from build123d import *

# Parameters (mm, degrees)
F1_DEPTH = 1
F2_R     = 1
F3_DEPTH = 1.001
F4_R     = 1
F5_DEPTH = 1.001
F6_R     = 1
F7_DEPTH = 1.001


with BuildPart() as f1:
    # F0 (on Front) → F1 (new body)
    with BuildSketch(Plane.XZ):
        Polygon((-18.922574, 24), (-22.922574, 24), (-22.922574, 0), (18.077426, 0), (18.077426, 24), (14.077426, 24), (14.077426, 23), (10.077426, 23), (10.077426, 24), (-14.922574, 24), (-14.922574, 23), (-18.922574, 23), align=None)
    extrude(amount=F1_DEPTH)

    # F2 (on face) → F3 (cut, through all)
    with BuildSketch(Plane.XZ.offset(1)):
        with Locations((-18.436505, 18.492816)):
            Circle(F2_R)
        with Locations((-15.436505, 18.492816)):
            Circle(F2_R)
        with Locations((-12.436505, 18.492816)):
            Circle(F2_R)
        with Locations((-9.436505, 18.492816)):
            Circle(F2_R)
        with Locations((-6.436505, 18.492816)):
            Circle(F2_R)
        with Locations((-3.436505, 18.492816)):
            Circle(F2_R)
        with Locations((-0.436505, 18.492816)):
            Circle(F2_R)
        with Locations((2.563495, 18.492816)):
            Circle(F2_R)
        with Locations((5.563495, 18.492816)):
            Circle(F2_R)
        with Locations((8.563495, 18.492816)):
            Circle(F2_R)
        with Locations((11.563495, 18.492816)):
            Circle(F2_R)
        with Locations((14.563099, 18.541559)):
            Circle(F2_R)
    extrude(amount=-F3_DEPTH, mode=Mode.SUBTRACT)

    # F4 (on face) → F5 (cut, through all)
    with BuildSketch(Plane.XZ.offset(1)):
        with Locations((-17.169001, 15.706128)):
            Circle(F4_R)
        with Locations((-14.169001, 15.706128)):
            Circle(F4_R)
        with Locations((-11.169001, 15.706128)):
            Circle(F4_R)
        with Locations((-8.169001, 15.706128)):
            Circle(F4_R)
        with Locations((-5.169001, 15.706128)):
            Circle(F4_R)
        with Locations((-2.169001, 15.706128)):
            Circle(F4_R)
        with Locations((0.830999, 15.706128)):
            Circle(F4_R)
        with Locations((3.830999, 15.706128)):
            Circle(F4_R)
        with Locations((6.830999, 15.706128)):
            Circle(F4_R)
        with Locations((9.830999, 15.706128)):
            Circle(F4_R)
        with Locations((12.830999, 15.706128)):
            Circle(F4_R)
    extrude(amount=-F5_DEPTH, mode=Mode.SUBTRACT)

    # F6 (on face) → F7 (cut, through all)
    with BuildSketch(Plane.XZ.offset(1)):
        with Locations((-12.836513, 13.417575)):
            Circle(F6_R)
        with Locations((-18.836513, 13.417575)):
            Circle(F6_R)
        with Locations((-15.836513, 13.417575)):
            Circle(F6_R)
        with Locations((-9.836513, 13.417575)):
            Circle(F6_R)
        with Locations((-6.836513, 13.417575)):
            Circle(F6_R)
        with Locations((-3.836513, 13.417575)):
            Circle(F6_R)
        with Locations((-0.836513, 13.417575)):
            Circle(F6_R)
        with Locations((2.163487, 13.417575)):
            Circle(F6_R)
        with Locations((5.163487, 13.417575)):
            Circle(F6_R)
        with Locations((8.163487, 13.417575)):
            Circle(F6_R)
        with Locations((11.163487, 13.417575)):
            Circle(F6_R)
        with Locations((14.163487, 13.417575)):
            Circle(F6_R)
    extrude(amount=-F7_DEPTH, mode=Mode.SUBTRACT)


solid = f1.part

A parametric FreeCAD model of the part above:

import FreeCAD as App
import Part
import Sketcher

doc = App.newDocument("Part")
body = doc.addObject("PartDesign::Body", "Body")

# Sketch on XZ plane
sketch1 = body.newObject("Sketcher::SketchObject", "Sketch")
sketch1.AttachmentSupport = (doc.getObject("XZ_Plane"), [""])
sketch1.MapMode = "FlatFace"
sketch1.addGeometry([
    Part.LineSegment(App.Vector(-18.9, 24, 0), App.Vector(-22.9, 24, 0)),  # 0
    Part.LineSegment(App.Vector(-22.9, 24, 0), App.Vector(-22.9, 0, 0)),  # 1
    Part.LineSegment(App.Vector(-22.9, 0, 0), App.Vector(18.1, 0, 0)),  # 2
    Part.LineSegment(App.Vector(18.1, 0, 0), App.Vector(18.1, 24, 0)),  # 3
    Part.LineSegment(App.Vector(18.1, 24, 0), App.Vector(14.1, 24, 0)),  # 4
    Part.LineSegment(App.Vector(14.1, 24, 0), App.Vector(14.1, 23, 0)),  # 5
    Part.LineSegment(App.Vector(14.1, 23, 0), App.Vector(10.1, 23, 0)),  # 6
    Part.LineSegment(App.Vector(10.1, 23, 0), App.Vector(10.1, 24, 0)),  # 7
    Part.LineSegment(App.Vector(10.1, 24, 0), App.Vector(-14.9, 24, 0)),  # 8
    Part.LineSegment(App.Vector(-14.9, 24, 0), App.Vector(-14.9, 23, 0)),  # 9
    Part.LineSegment(App.Vector(-14.9, 23, 0), App.Vector(-18.9, 23, 0)),  # 10
    Part.LineSegment(App.Vector(-18.9, 23, 0), App.Vector(-18.9, 24, 0)),  # 11
], False)
sketch1.addConstraint([
    Sketcher.Constraint("Coincident", 0, 2, 1, 1),
    Sketcher.Constraint("Coincident", 1, 2, 2, 1),
    Sketcher.Constraint("Coincident", 2, 2, 3, 1),
    Sketcher.Constraint("Coincident", 3, 2, 4, 1),
    Sketcher.Constraint("Coincident", 4, 2, 5, 1),
    Sketcher.Constraint("Coincident", 5, 2, 6, 1),
    Sketcher.Constraint("Coincident", 6, 2, 7, 1),
    Sketcher.Constraint("Coincident", 7, 2, 8, 1),
    Sketcher.Constraint("Coincident", 8, 2, 9, 1),
    Sketcher.Constraint("Coincident", 9, 2, 10, 1),
    Sketcher.Constraint("Coincident", 10, 2, 11, 1),
    Sketcher.Constraint("Coincident", 11, 2, 0, 1),
    Sketcher.Constraint("Horizontal", 0),
    Sketcher.Constraint("Vertical", 1),
    Sketcher.Constraint("Horizontal", 2),
    Sketcher.Constraint("Vertical", 3),
    Sketcher.Constraint("Horizontal", 4),
    Sketcher.Constraint("Vertical", 5),
    Sketcher.Constraint("Horizontal", 6),
    Sketcher.Constraint("Vertical", 7),
    Sketcher.Constraint("Horizontal", 8),
    Sketcher.Constraint("Vertical", 9),
    Sketcher.Constraint("Horizontal", 10),
    Sketcher.Constraint("Vertical", 11),
    Sketcher.Constraint("PointOnObject", 1, 2, -1),
    Sketcher.Constraint("Horizontal", 0, 2, 3, 2),
    Sketcher.Constraint("Horizontal", 4, 2, 7, 2),
    Sketcher.Constraint("Horizontal", 6, 2, 9, 2),
    Sketcher.Constraint("Equal", 0, 4),
    Sketcher.Constraint("Equal", 4, 6),
    Sketcher.Constraint("Equal", 6, 10),
    Sketcher.Constraint("DistanceX", 0, 2, 0, 1, 4.0),
    Sketcher.Constraint("DistanceX", 2, 1, 2, 2, 41.0),
    Sketcher.Constraint("DistanceY", 1, 2, 1, 1, 24.0),
    Sketcher.Constraint("DistanceY", 5, 2, 5, 1, 1.0),
    Sketcher.Constraint("DistanceX", 0, 2, -1, 1, 22.922574),
])
pad1 = body.newObject("PartDesign::Pad", "Pad")
pad1.Profile = sketch1
pad1.Length = 1

# Sketch on XZ plane
sketch2 = body.newObject("Sketcher::SketchObject", "Sketch001")
sketch2.AttachmentSupport = (doc.getObject("XZ_Plane"), [""])
sketch2.MapMode = "FlatFace"
sketch2.AttachmentOffset = App.Placement(App.Vector(0, 0, 1), App.Rotation())
sketch2.addGeometry([
    Part.Circle(App.Vector(-18.4, 18.5, 0), App.Vector(0, 0, 1), 1),  # 0
    Part.Circle(App.Vector(-15.4, 18.5, 0), App.Vector(0, 0, 1), 1),  # 1
    Part.Circle(App.Vector(-12.4, 18.5, 0), App.Vector(0, 0, 1), 1),  # 2
    Part.Circle(App.Vector(-9.4, 18.5, 0), App.Vector(0, 0, 1), 1),  # 3
    Part.Circle(App.Vector(-6.4, 18.5, 0), App.Vector(0, 0, 1), 1),  # 4
    Part.Circle(App.Vector(-3.4, 18.5, 0), App.Vector(0, 0, 1), 1),  # 5
    Part.Circle(App.Vector(-0.4, 18.5, 0), App.Vector(0, 0, 1), 1),  # 6
    Part.Circle(App.Vector(2.6, 18.5, 0), App.Vector(0, 0, 1), 1),  # 7
    Part.Circle(App.Vector(5.6, 18.5, 0), App.Vector(0, 0, 1), 1),  # 8
    Part.Circle(App.Vector(8.6, 18.5, 0), App.Vector(0, 0, 1), 1),  # 9
    Part.Circle(App.Vector(11.6, 18.5, 0), App.Vector(0, 0, 1), 1),  # 10
    Part.Circle(App.Vector(14.6, 18.5, 0), App.Vector(0, 0, 1), 1),  # 11
], False)
sketch2.addConstraint([
    Sketcher.Constraint("Equal", 0, 1),
    Sketcher.Constraint("Equal", 1, 2),
    Sketcher.Constraint("Equal", 2, 3),
    Sketcher.Constraint("Equal", 3, 4),
    Sketcher.Constraint("Equal", 4, 5),
    Sketcher.Constraint("Equal", 5, 6),
    Sketcher.Constraint("Equal", 6, 7),
    Sketcher.Constraint("Equal", 7, 8),
    Sketcher.Constraint("Equal", 8, 9),
    Sketcher.Constraint("Equal", 9, 10),
    Sketcher.Constraint("Equal", 10, 11),
    Sketcher.Constraint("Horizontal", 0, 3, 1, 3),
    Sketcher.Constraint("Horizontal", 1, 3, 2, 3),
    Sketcher.Constraint("Horizontal", 2, 3, 3, 3),
    Sketcher.Constraint("Horizontal", 3, 3, 4, 3),
    Sketcher.Constraint("Horizontal", 4, 3, 5, 3),
    Sketcher.Constraint("Horizontal", 5, 3, 6, 3),
    Sketcher.Constraint("Horizontal", 6, 3, 7, 3),
    Sketcher.Constraint("Horizontal", 7, 3, 8, 3),
    Sketcher.Constraint("Horizontal", 8, 3, 9, 3),
    Sketcher.Constraint("Horizontal", 9, 3, 10, 3),
    Sketcher.Constraint("Diameter", 0, 2.0),
    Sketcher.Constraint("DistanceX", 0, 3, 1, 3, 3.0),
    Sketcher.Constraint("DistanceX", 1, 3, 2, 3, 3.0),
    Sketcher.Constraint("DistanceX", 2, 3, 3, 3, 3.0),
    Sketcher.Constraint("DistanceX", 3, 3, 4, 3, 3.0),
    Sketcher.Constraint("DistanceX", 4, 3, 5, 3, 3.0),
    Sketcher.Constraint("DistanceX", 5, 3, 6, 3, 3.0),
    Sketcher.Constraint("DistanceX", 6, 3, 7, 3, 3.0),
    Sketcher.Constraint("DistanceX", 7, 3, 8, 3, 3.0),
    Sketcher.Constraint("DistanceX", 8, 3, 9, 3, 3.0),
    Sketcher.Constraint("DistanceX", 9, 3, 10, 3, 3.0),
    Sketcher.Constraint("DistanceX", -1, 1, 11, 3, 14.563099),
    Sketcher.Constraint("DistanceY", -1, 1, 11, 3, 18.541559),
    Sketcher.Constraint("DistanceX", 0, 3, -1, 1, 18.436505),
    Sketcher.Constraint("DistanceY", -1, 1, 0, 3, 18.492816),
])
pocket1 = body.newObject("PartDesign::Pocket", "Pocket")
pocket1.Profile = sketch2
pocket1.Type = "ThroughAll"

# Sketch on XZ plane
sketch3 = body.newObject("Sketcher::SketchObject", "Sketch002")
sketch3.AttachmentSupport = (doc.getObject("XZ_Plane"), [""])
sketch3.MapMode = "FlatFace"
sketch3.AttachmentOffset = App.Placement(App.Vector(0, 0, 1), App.Rotation())
sketch3.addGeometry([
    Part.Circle(App.Vector(-17.2, 15.7, 0), App.Vector(0, 0, 1), 1),  # 0
    Part.Circle(App.Vector(-14.2, 15.7, 0), App.Vector(0, 0, 1), 1),  # 1
    Part.Circle(App.Vector(-11.2, 15.7, 0), App.Vector(0, 0, 1), 1),  # 2
    Part.Circle(App.Vector(-8.2, 15.7, 0), App.Vector(0, 0, 1), 1),  # 3
    Part.Circle(App.Vector(-5.2, 15.7, 0), App.Vector(0, 0, 1), 1),  # 4
    Part.Circle(App.Vector(-2.2, 15.7, 0), App.Vector(0, 0, 1), 1),  # 5
    Part.Circle(App.Vector(0.8, 15.7, 0), App.Vector(0, 0, 1), 1),  # 6
    Part.Circle(App.Vector(3.8, 15.7, 0), App.Vector(0, 0, 1), 1),  # 7
    Part.Circle(App.Vector(6.8, 15.7, 0), App.Vector(0, 0, 1), 1),  # 8
    Part.Circle(App.Vector(9.8, 15.7, 0), App.Vector(0, 0, 1), 1),  # 9
    Part.Circle(App.Vector(12.8, 15.7, 0), App.Vector(0, 0, 1), 1),  # 10
], False)
sketch3.addConstraint([
    Sketcher.Constraint("Equal", 0, 1),
    Sketcher.Constraint("Equal", 1, 2),
    Sketcher.Constraint("Equal", 2, 3),
    Sketcher.Constraint("Equal", 3, 4),
    Sketcher.Constraint("Equal", 4, 5),
    Sketcher.Constraint("Equal", 5, 6),
    Sketcher.Constraint("Equal", 6, 7),
    Sketcher.Constraint("Equal", 7, 8),
    Sketcher.Constraint("Equal", 8, 9),
    Sketcher.Constraint("Equal", 9, 10),
    Sketcher.Constraint("Horizontal", 0, 3, 1, 3),
    Sketcher.Constraint("Horizontal", 1, 3, 2, 3),
    Sketcher.Constraint("Horizontal", 2, 3, 3, 3),
    Sketcher.Constraint("Horizontal", 3, 3, 4, 3),
    Sketcher.Constraint("Horizontal", 4, 3, 5, 3),
    Sketcher.Constraint("Horizontal", 5, 3, 6, 3),
    Sketcher.Constraint("Horizontal", 6, 3, 7, 3),
    Sketcher.Constraint("Horizontal", 7, 3, 8, 3),
    Sketcher.Constraint("Horizontal", 8, 3, 9, 3),
    Sketcher.Constraint("Horizontal", 9, 3, 10, 3),
    Sketcher.Constraint("Diameter", 0, 2.0),
    Sketcher.Constraint("DistanceX", 0, 3, 1, 3, 3.0),
    Sketcher.Constraint("DistanceX", 1, 3, 2, 3, 3.0),
    Sketcher.Constraint("DistanceX", 2, 3, 3, 3, 3.0),
    Sketcher.Constraint("DistanceX", 3, 3, 4, 3, 3.0),
    Sketcher.Constraint("DistanceX", 4, 3, 5, 3, 3.0),
    Sketcher.Constraint("DistanceX", 5, 3, 6, 3, 3.0),
    Sketcher.Constraint("DistanceX", 6, 3, 7, 3, 3.0),
    Sketcher.Constraint("DistanceX", 7, 3, 8, 3, 3.0),
    Sketcher.Constraint("DistanceX", 8, 3, 9, 3, 3.0),
    Sketcher.Constraint("DistanceX", 9, 3, 10, 3, 3.0),
    Sketcher.Constraint("DistanceX", 0, 3, -1, 1, 17.169001),
    Sketcher.Constraint("DistanceY", -1, 1, 0, 3, 15.706128),
])
pocket2 = body.newObject("PartDesign::Pocket", "Pocket001")
pocket2.Profile = sketch3
pocket2.Type = "ThroughAll"

# Sketch on XZ plane
sketch4 = body.newObject("Sketcher::SketchObject", "Sketch003")
sketch4.AttachmentSupport = (doc.getObject("XZ_Plane"), [""])
sketch4.MapMode = "FlatFace"
sketch4.AttachmentOffset = App.Placement(App.Vector(0, 0, 1), App.Rotation())
sketch4.addGeometry([
    Part.Circle(App.Vector(-12.8, 13.4, 0), App.Vector(0, 0, 1), 1),  # 0
    Part.Circle(App.Vector(-18.8, 13.4, 0), App.Vector(0, 0, 1), 1),  # 1
    Part.Circle(App.Vector(-15.8, 13.4, 0), App.Vector(0, 0, 1), 1),  # 2
    Part.Circle(App.Vector(-9.8, 13.4, 0), App.Vector(0, 0, 1), 1),  # 3
    Part.Circle(App.Vector(-6.8, 13.4, 0), App.Vector(0, 0, 1), 1),  # 4
    Part.Circle(App.Vector(-3.8, 13.4, 0), App.Vector(0, 0, 1), 1),  # 5
    Part.Circle(App.Vector(-0.8, 13.4, 0), App.Vector(0, 0, 1), 1),  # 6
    Part.Circle(App.Vector(2.2, 13.4, 0), App.Vector(0, 0, 1), 1),  # 7
    Part.Circle(App.Vector(5.2, 13.4, 0), App.Vector(0, 0, 1), 1),  # 8
    Part.Circle(App.Vector(8.2, 13.4, 0), App.Vector(0, 0, 1), 1),  # 9
    Part.Circle(App.Vector(11.2, 13.4, 0), App.Vector(0, 0, 1), 1),  # 10
    Part.Circle(App.Vector(14.2, 13.4, 0), App.Vector(0, 0, 1), 1),  # 11
], False)
sketch4.addConstraint([
    Sketcher.Constraint("Equal", 0, 1),
    Sketcher.Constraint("Equal", 1, 2),
    Sketcher.Constraint("Equal", 2, 3),
    Sketcher.Constraint("Equal", 3, 4),
    Sketcher.Constraint("Equal", 4, 5),
    Sketcher.Constraint("Equal", 5, 6),
    Sketcher.Constraint("Equal", 6, 7),
    Sketcher.Constraint("Equal", 7, 8),
    Sketcher.Constraint("Equal", 8, 9),
    Sketcher.Constraint("Equal", 9, 10),
    Sketcher.Constraint("Equal", 10, 11),
    Sketcher.Constraint("Horizontal", 0, 3, 1, 3),
    Sketcher.Constraint("Horizontal", 1, 3, 2, 3),
    Sketcher.Constraint("Horizontal", 2, 3, 3, 3),
    Sketcher.Constraint("Horizontal", 3, 3, 4, 3),
    Sketcher.Constraint("Horizontal", 4, 3, 5, 3),
    Sketcher.Constraint("Horizontal", 5, 3, 6, 3),
    Sketcher.Constraint("Horizontal", 6, 3, 7, 3),
    Sketcher.Constraint("Horizontal", 7, 3, 8, 3),
    Sketcher.Constraint("Horizontal", 8, 3, 9, 3),
    Sketcher.Constraint("Horizontal", 9, 3, 10, 3),
    Sketcher.Constraint("Horizontal", 10, 3, 11, 3),
    Sketcher.Constraint("Diameter", 0, 2.0),
    Sketcher.Constraint("DistanceX", 1, 3, 0, 3, 6.0),
    Sketcher.Constraint("DistanceX", 2, 3, 0, 3, 3.0),
    Sketcher.Constraint("DistanceX", 0, 3, 3, 3, 3.0),
    Sketcher.Constraint("DistanceX", 3, 3, 4, 3, 3.0),
    Sketcher.Constraint("DistanceX", 4, 3, 5, 3, 3.0),
    Sketcher.Constraint("DistanceX", 5, 3, 6, 3, 3.0),
    Sketcher.Constraint("DistanceX", 6, 3, 7, 3, 3.0),
    Sketcher.Constraint("DistanceX", 7, 3, 8, 3, 3.0),
    Sketcher.Constraint("DistanceX", 8, 3, 9, 3, 3.0),
    Sketcher.Constraint("DistanceX", 9, 3, 10, 3, 3.0),
    Sketcher.Constraint("DistanceX", 10, 3, 11, 3, 3.0),
    Sketcher.Constraint("DistanceX", 0, 3, -1, 1, 12.836513),
    Sketcher.Constraint("DistanceY", -1, 1, 0, 3, 13.417575),
])
pocket3 = body.newObject("PartDesign::Pocket", "Pocket002")
pocket3.Profile = sketch4
pocket3.Type = "ThroughAll"

doc.recompute()
